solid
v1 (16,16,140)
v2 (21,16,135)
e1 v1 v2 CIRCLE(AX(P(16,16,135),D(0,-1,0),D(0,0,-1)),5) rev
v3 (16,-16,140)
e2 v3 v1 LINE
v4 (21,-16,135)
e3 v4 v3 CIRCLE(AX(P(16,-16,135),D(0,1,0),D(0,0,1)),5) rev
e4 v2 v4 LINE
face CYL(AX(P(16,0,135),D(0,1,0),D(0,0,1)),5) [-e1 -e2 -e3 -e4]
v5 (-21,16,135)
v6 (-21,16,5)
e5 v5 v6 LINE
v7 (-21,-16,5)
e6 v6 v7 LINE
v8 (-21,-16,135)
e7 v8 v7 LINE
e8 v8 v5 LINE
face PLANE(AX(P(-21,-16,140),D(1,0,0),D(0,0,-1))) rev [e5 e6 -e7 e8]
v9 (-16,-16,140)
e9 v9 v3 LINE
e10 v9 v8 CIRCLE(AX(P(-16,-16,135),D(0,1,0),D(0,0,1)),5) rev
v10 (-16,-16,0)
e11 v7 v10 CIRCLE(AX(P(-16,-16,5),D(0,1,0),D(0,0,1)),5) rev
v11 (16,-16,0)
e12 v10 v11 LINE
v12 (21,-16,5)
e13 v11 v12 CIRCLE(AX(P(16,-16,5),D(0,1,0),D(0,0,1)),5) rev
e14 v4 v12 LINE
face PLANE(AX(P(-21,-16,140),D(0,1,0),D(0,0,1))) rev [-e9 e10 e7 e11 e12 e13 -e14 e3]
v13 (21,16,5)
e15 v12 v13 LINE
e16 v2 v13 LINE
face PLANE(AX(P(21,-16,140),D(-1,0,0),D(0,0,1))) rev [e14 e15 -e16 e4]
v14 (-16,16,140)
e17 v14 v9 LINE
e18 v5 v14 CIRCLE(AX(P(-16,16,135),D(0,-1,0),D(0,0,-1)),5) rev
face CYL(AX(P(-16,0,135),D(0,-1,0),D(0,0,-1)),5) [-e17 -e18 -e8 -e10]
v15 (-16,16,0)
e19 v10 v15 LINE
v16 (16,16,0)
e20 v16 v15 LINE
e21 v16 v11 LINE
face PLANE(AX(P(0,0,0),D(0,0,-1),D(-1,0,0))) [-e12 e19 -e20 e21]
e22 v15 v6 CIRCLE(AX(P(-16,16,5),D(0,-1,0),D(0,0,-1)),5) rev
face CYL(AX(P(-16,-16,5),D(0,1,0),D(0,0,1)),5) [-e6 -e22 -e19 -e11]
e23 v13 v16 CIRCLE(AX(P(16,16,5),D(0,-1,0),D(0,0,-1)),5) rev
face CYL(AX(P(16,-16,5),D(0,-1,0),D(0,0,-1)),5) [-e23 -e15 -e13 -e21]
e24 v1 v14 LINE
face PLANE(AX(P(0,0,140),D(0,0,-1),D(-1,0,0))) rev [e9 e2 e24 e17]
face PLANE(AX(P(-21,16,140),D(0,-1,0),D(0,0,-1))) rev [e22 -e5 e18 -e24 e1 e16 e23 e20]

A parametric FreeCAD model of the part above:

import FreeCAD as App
import Part
import Sketcher
Q = App.Units.Quantity


def edges_at(feature, points):
    """Names of the edges that pass closest to the given points."""
    edges = feature.Shape.Edges
    near = lambda p: min(range(len(edges)), key=lambda i: edges[i].distToShape(Part.Vertex(*p))[0])
    return sorted({f"Edge{near(p) + 1}" for p in points})

doc = App.newDocument("Part")
body = doc.addObject("PartDesign::Body", "Body")

sketch1 = body.newObject("Sketcher::SketchObject", "Sketch")
sketch1.AttachmentSupport = (doc.getObject("XY_Plane"), [""])
sketch1.MapMode = "FlatFace"
sketch1.addGeometry(Part.LineSegment(App.Vector(-21, 16, 0), App.Vector(-21, -16, 0)), False)
sketch1.addGeometry(Part.LineSegment(App.Vector(-21, -16, 0), App.Vector(21, -16, 0)), False)
sketch1.addGeometry(Part.LineSegment(App.Vector(21, -16, 0), App.Vector(21, 16, 0)), False)
sketch1.addGeometry(Part.LineSegment(App.Vector(21, 16, 0), App.Vector(-21, 16, 0)), False)
sketch1.addConstraint(Sketcher.Constraint("Coincident", 0, 2, 1, 1))
sketch1.addConstraint(Sketcher.Constraint("Coincident", 1, 2, 2, 1))
sketch1.addConstraint(Sketcher.Constraint("Coincident", 2, 2, 3, 1))
sketch1.addConstraint(Sketcher.Constraint("Coincident", 3, 2, 0, 1))
sketch1.addConstraint(Sketcher.Constraint("Vertical", 0))
sketch1.addConstraint(Sketcher.Constraint("Horizontal", 1))
sketch1.addConstraint(Sketcher.Constraint("Vertical", 2))
sketch1.addConstraint(Sketcher.Constraint("Horizontal", 3))
sketch1.addConstraint(Sketcher.Constraint("Symmetric", 0, 2, 2, 2, -1, 1))
sketch1.addConstraint(Sketcher.Constraint("DistanceX", 1, 1, 1, 2, Q("42 mm")))
sketch1.addConstraint(Sketcher.Constraint("DistanceY", 0, 2, 0, 1, Q("32 mm")))
pad1 = body.newObject("PartDesign::Pad", "Pad")
pad1.Profile = sketch1
pad1.Length = 140
doc.recompute()

fillet = body.newObject("PartDesign::Fillet", "Fillet")
fillet.Base = (pad1, edges_at(pad1, [
    (-21, 0, 140),
    (21, 0, 140),
    (-21, 0, 0),
    (21, 0, 0),
]))
fillet.Radius = 5

doc.recompute()
